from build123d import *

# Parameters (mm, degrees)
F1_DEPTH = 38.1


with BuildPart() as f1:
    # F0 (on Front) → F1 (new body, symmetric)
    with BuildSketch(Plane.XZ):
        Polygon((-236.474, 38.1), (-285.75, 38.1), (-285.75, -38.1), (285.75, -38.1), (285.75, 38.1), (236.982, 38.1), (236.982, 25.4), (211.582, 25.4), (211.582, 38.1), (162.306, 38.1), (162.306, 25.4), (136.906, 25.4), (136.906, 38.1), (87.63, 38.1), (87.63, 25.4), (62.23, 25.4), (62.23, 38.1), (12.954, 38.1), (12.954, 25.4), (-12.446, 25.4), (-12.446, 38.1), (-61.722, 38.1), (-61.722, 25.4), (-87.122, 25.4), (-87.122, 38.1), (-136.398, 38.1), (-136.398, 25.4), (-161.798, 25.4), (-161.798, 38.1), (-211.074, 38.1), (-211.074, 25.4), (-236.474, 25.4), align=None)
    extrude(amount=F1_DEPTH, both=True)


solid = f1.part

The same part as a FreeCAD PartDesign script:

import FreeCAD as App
import Part
import Sketcher
from FreeCAD import Vector
Q = App.Units.Quantity

doc = App.newDocument("Part")
body = doc.addObject("PartDesign::Body", "Body")

sketch1 = body.newObject("Sketcher::SketchObject", "Sketch")
sketch1.AttachmentSupport = (doc.getObject("XZ_Plane"), [""])
sketch1.MapMode = "FlatFace"
sketch1.addGeometry([
    Part.LineSegment(Vector(-236, 38, 0), Vector(-286, 38, 0)),
    Part.LineSegment(Vector(-286, 38, 0), Vector(-286, -38, 0)),
    Part.LineSegment(Vector(-286, -38, 0), Vector(286, -38, 0)),
    Part.LineSegment(Vector(286, -38, 0), Vector(286, 38, 0)),
    Part.LineSegment(Vector(286, 38, 0), Vector(237, 38, 0)),
    Part.LineSegment(Vector(237, 38, 0), Vector(237, 25, 0)),
    Part.LineSegment(Vector(237, 25, 0), Vector(212, 25, 0)),
    Part.LineSegment(Vector(212, 25, 0), Vector(212, 38, 0)),
    Part.LineSegment(Vector(212, 38, 0), Vector(162, 38, 0)),
    Part.LineSegment(Vector(162, 38, 0), Vector(162, 25, 0)),
    Part.LineSegment(Vector(162, 25, 0), Vector(137, 25, 0)),
    Part.LineSegment(Vector(137, 25, 0), Vector(137, 38, 0)),
    Part.LineSegment(Vector(137, 38, 0), Vector(88, 38, 0)),
    Part.LineSegment(Vector(88, 38, 0), Vector(88, 25, 0)),
    Part.LineSegment(Vector(88, 25, 0), Vector(62, 25, 0)),
    Part.LineSegment(Vector(62, 25, 0), Vector(62, 38, 0)),
    Part.LineSegment(Vector(62, 38, 0), Vector(13, 38, 0)),
    Part.LineSegment(Vector(13, 38, 0), Vector(13, 25, 0)),
    Part.LineSegment(Vector(13, 25, 0), Vector(-12, 25, 0)),
    Part.LineSegment(Vector(-12, 25, 0), Vector(-12, 38, 0)),
    Part.LineSegment(Vector(-12, 38, 0), Vector(-62, 38, 0)),
    Part.LineSegment(Vector(-62, 38, 0), Vector(-62, 25, 0)),
    Part.LineSegment(Vector(-62, 25, 0), Vector(-87, 25, 0)),
    Part.LineSegment(Vector(-87, 25, 0), Vector(-87, 38, 0)),
    Part.LineSegment(Vector(-87, 38, 0), Vector(-136, 38, 0)),
    Part.LineSegment(Vector(-136, 38, 0), Vector(-136, 25, 0)),
    Part.LineSegment(Vector(-136, 25, 0), Vector(-162, 25, 0)),
    Part.LineSegment(Vector(-162, 25, 0), Vector(-162, 38, 0)),
    Part.LineSegment(Vector(-162, 38, 0), Vector(-211, 38, 0)),
    Part.LineSegment(Vector(-211, 38, 0), Vector(-211, 25, 0)),
    Part.LineSegment(Vector(-211, 25, 0), Vector(-236, 25, 0)),
    Part.LineSegment(Vector(-236, 25, 0), Vector(-236, 38, 0)),
], False)
sketch1.addConstraint([
    Sketcher.Constraint("Coincident", 0, 2, 1, 1),
    Sketcher.Constraint("Coincident", 1, 2, 2, 1),
    Sketcher.Constraint("Coincident", 2, 2, 3, 1),
    Sketcher.Constraint("Coincident", 3, 2, 4, 1),
    Sketcher.Constraint("Coincident", 4, 2, 5, 1),
    Sketcher.Constraint("Coincident", 5, 2, 6, 1),
    Sketcher.Constraint("Coincident", 6, 2, 7, 1),
    Sketcher.Constraint("Coincident", 7, 2, 8, 1),
    Sketcher.Constraint("Coincident", 8, 2, 9, 1),
    Sketcher.Constraint("Coincident", 9, 2, 10, 1),
    Sketcher.Constraint("Coincident", 10, 2, 11, 1),
    Sketcher.Constraint("Coincident", 11, 2, 12, 1),
    Sketcher.Constraint("Coincident", 12, 2, 13, 1),
    Sketcher.Constraint("Coincident", 13, 2, 14, 1),
    Sketcher.Constraint("Coincident", 14, 2, 15, 1),
    Sketcher.Constraint("Coincident", 15, 2, 16, 1),
    Sketcher.Constraint("Coincident", 16, 2, 17, 1),
    Sketcher.Constraint("Coincident", 17, 2, 18, 1),
    Sketcher.Constraint("Coincident", 18, 2, 19, 1),
    Sketcher.Constraint("Coincident", 19, 2, 20, 1),
    Sketcher.Constraint("Coincident", 20, 2, 21, 1),
    Sketcher.Constraint("Coincident", 21, 2, 22, 1),
    Sketcher.Constraint("Coincident", 22, 2, 23, 1),
    Sketcher.Constraint("Coincident", 23, 2, 24, 1),
    Sketcher.Constraint("Coincident", 24, 2, 25, 1),
    Sketcher.Constraint("Coincident", 25, 2, 26, 1),
    Sketcher.Constraint("Coincident", 26, 2, 27, 1),
    Sketcher.Constraint("Coincident", 27, 2, 28, 1),
    Sketcher.Constraint("Coincident", 28, 2, 29, 1),
    Sketcher.Constraint("Coincident", 29, 2, 30, 1),
    Sketcher.Constraint("Coincident", 30, 2, 31, 1),
    Sketcher.Constraint("Coincident", 31, 2, 0, 1),
    Sketcher.Constraint("Horizontal", 0),
    Sketcher.Constraint("Vertical", 1),
    Sketcher.Constraint("Horizontal", 2),
    Sketcher.Constraint("Vertical", 3),
    Sketcher.Constraint("Horizontal", 4),
    Sketcher.Constraint("Vertical", 5),
    Sketcher.Constraint("Horizontal", 6),
    Sketcher.Constraint("Vertical", 7),
    Sketcher.Constraint("Horizontal", 8),
    Sketcher.Constraint("Vertical", 9),
    Sketcher.Constraint("Horizontal", 10),
    Sketcher.Constraint("Vertical", 11),
    Sketcher.Constraint("Horizontal", 12),
    Sketcher.Constraint("Vertical", 13),
    Sketcher.Constraint("Horizontal", 14),
    Sketcher.Constraint("Vertical", 15),
    Sketcher.Constraint("Horizontal", 16),
    Sketcher.Constraint("Vertical", 17),
    Sketcher.Constraint("Horizontal", 18),
    Sketcher.Constraint("Vertical", 19),
    Sketcher.Constraint("Horizontal", 20),
    Sketcher.Constraint("Vertical", 21),
    Sketcher.Constraint("Horizontal", 22),
    Sketcher.Constraint("Vertical", 23),
    Sketcher.Constraint("Horizontal", 24),
    Sketcher.Constraint("Vertical", 25),
    Sketcher.Constraint("Horizontal", 26),
    Sketcher.Constraint("Vertical", 27),
    Sketcher.Constraint("Horizontal", 28),
    Sketcher.Constraint("Vertical", 29),
    Sketcher.Constraint("Horizontal", 30),
    Sketcher.Constraint("Vertical", 31),
    Sketcher.Constraint("Symmetric", 0, 2, 2, 2, -1, 1),
    Sketcher.Constraint("Horizontal", 0, 2, 3, 2),
    Sketcher.Constraint("Horizontal", 4, 2, 7, 2),
    Sketcher.Constraint("Horizontal", 6, 2, 9, 2),
    Sketcher.Constraint("Horizontal", 8, 2, 11, 2),
    Sketcher.Constraint("Horizontal", 10, 2, 13, 2),
    Sketcher.Constraint("Horizontal", 12, 2, 15, 2),
    Sketcher.Constraint("Horizontal", 14, 2, 17, 2),
    Sketcher.Constraint("Horizontal", 16, 2, 19, 2),
    Sketcher.Constraint("Horizontal", 18, 2, 21, 2),
    Sketcher.Constraint("Horizontal", 20, 2, 23, 2),
    Sketcher.Constraint("Horizontal", 22, 2, 25, 2),
    Sketcher.Constraint("Horizontal", 24, 2, 27, 2),
    Sketcher.Constraint("Horizontal", 26, 2, 29, 2),
    Sketcher.Constraint("Equal", 0, 8),
    Sketcher.Constraint("Equal", 6, 10),
    Sketcher.Constraint("Equal", 8, 12),
    Sketcher.Constraint("Equal", 10, 14),
    Sketcher.Constraint("Equal", 12, 16),
    Sketcher.Constraint("Equal", 14, 18),
    Sketcher.Constraint("Equal", 16, 20),
    Sketcher.Constraint("Equal", 18, 22),
    Sketcher.Constraint("Equal", 20, 24),
    Sketcher.Constraint("Equal", 22, 26),
    Sketcher.Constraint("Equal", 24, 28),
    Sketcher.Constraint("Equal", 26, 30),
    Sketcher.Constraint("DistanceX", 6, 2, 6, 1, Q("1 in")),
    Sketcher.Constraint("DistanceY", 1, 2, 1, 1, Q("3 in")),
    Sketcher.Constraint("DistanceX", 2, 1, 2, 2, Q("22.5 in")),
    Sketcher.Constraint("DistanceY", 5, 2, 5, 1, Q("0.5 in")),
    Sketcher.Constraint("DistanceX", 0, 2, 0, 1, Q("1.94 in")),
])
pad1 = body.newObject("PartDesign::Pad", "Pad")
pad1.Profile = sketch1
pad1.Length = Q("3 in")
pad1.Midplane = True

doc.recompute()
